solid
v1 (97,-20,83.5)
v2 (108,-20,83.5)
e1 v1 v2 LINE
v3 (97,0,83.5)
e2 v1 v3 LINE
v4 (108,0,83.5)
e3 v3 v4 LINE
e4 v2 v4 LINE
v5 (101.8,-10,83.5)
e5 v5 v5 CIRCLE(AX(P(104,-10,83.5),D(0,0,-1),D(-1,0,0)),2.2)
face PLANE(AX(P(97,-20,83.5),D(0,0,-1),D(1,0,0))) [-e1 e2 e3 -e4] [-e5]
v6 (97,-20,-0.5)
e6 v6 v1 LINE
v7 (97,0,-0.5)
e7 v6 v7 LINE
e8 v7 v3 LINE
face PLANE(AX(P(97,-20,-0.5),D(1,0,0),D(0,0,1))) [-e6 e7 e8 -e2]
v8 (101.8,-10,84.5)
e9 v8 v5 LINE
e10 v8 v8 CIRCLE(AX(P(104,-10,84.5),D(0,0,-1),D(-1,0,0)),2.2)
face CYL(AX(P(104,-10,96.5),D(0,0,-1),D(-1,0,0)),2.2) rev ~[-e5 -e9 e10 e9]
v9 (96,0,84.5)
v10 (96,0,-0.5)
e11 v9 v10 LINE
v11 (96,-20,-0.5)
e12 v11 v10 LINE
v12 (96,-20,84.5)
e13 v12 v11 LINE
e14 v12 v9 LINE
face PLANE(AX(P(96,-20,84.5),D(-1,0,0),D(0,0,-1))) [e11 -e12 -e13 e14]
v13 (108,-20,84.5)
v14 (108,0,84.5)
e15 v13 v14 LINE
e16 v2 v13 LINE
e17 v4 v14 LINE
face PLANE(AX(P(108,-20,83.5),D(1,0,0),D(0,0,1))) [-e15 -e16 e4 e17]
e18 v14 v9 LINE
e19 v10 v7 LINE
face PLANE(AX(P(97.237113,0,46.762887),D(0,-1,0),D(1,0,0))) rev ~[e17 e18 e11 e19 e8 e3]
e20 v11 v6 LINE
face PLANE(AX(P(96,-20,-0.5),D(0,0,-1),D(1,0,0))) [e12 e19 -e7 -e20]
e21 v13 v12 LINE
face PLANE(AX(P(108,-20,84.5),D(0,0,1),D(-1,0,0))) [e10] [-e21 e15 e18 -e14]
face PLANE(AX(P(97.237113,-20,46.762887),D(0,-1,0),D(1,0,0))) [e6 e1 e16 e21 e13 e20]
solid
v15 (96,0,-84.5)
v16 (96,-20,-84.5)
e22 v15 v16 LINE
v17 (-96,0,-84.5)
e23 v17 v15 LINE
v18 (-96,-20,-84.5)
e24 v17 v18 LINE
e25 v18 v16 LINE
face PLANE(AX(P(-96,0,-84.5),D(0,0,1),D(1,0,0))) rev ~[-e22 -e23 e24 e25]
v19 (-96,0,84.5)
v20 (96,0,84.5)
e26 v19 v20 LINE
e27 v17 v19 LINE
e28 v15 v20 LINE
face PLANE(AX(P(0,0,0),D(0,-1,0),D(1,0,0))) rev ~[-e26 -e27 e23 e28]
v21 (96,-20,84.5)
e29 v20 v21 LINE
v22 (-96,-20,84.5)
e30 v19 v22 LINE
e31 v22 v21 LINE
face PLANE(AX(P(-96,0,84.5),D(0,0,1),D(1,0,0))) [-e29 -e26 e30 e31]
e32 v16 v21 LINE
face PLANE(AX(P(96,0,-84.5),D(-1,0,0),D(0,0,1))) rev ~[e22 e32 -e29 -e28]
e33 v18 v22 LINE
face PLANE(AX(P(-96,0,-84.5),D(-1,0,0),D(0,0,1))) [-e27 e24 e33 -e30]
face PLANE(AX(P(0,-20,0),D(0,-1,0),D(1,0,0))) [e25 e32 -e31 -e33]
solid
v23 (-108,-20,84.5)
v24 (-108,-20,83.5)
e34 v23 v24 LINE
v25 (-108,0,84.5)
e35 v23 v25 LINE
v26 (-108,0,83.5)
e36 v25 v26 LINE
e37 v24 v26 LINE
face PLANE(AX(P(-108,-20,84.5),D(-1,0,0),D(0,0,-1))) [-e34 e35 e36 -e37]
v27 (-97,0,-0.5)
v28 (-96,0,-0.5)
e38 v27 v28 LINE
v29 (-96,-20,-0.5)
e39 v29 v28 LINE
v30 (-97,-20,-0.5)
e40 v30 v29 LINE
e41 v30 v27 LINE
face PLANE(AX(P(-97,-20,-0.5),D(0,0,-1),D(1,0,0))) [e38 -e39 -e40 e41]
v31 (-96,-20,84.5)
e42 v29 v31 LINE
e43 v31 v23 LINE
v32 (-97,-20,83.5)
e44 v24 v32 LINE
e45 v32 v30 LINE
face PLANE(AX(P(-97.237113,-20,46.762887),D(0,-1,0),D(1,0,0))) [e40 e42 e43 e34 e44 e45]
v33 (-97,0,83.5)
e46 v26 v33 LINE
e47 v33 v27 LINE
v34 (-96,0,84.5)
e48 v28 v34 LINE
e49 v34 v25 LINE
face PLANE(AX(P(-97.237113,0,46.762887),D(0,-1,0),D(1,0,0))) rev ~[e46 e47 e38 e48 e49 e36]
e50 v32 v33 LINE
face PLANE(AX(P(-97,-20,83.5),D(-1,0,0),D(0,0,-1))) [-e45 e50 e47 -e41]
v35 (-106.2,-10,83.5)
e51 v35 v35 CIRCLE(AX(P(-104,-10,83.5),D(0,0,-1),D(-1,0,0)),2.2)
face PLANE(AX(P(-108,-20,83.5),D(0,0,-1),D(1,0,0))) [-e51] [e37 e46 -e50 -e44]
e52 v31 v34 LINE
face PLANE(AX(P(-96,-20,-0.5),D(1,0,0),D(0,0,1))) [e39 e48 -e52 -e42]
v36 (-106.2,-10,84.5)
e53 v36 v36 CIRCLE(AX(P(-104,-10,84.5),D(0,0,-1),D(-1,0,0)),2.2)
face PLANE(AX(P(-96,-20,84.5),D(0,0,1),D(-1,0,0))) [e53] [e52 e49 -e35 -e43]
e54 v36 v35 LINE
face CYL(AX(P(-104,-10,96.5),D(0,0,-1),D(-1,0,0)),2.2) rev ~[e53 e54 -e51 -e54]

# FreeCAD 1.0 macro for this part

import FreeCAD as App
import Part
import Sketcher

doc = App.newDocument("Part")
body = doc.addObject("PartDesign::Body", "Body")

sketch1 = body.newObject("Sketcher::SketchObject", "Sketch")
sketch1.AttachmentSupport = (doc.getObject("XZ_Plane"), [""])
sketch1.MapMode = "FlatFace"
sketch1.addGeometry(Part.LineSegment(App.Vector(-96, 84, 0), App.Vector(-96, -84, 0)), False)
sketch1.addGeometry(Part.LineSegment(App.Vector(-96, -84, 0), App.Vector(96, -84, 0)), False)
sketch1.addGeometry(Part.LineSegment(App.Vector(96, -84, 0), App.Vector(96, 84, 0)), False)
sketch1.addGeometry(Part.LineSegment(App.Vector(96, 84, 0), App.Vector(-96, 84, 0)), False)
sketch1.addConstraint(Sketcher.Constraint("Coincident", 0, 2, 1, 1))
sketch1.addConstraint(Sketcher.Constraint("Coincident", 1, 2, 2, 1))
sketch1.addConstraint(Sketcher.Constraint("Coincident", 2, 2, 3, 1))
sketch1.addConstraint(Sketcher.Constraint("Coincident", 3, 2, 0, 1))
sketch1.addConstraint(Sketcher.Constraint("Vertical", 0))
sketch1.addConstraint(Sketcher.Constraint("Horizontal", 1))
sketch1.addConstraint(Sketcher.Constraint("Vertical", 2))
sketch1.addConstraint(Sketcher.Constraint("Horizontal", 3))
sketch1.addConstraint(Sketcher.Constraint("Symmetric", 0, 2, 2, 2, -1, 1))
sketch1.addConstraint(Sketcher.Constraint("DistanceX", 1, 1, 1, 2, 192.0))
sketch1.addConstraint(Sketcher.Constraint("DistanceY", 0, 2, 0, 1, 169.0))
pad1 = body.newObject("PartDesign::Pad", "Pad")
pad1.Profile = sketch1
pad1.Length = 20
body2 = doc.addObject("PartDesign::Body", "Body001")

sketch2 = body2.newObject("Sketcher::SketchObject", "Sketch001")
sketch2.AttachmentSupport = (doc.getObject("XZ_Plane001"), [""])
sketch2.MapMode = "FlatFace"
sketch2.AttachmentOffset = App.Placement(App.Vector(0, 0, 20), App.Rotation())
sketch2.addGeometry(Part.LineSegment(App.Vector(-96, -0.5, 0), App.Vector(-96, 84.5, 0)), False)
sketch2.addGeometry(Part.LineSegment(App.Vector(-96, 84.5, 0), App.Vector(-108, 84.5, 0)), False)
sketch2.addGeometry(Part.LineSegment(App.Vector(-108, 84.5, 0), App.Vector(-108, 83.5, 0)), False)
sketch2.addGeometry(Part.LineSegment(App.Vector(-108, 83.5, 0), App.Vector(-97, 83.5, 0)), False)
sketch2.addGeometry(Part.LineSegment(App.Vector(-97, 83.5, 0), App.Vector(-97, -0.5, 0)), False)
sketch2.addGeometry(Part.LineSegment(App.Vector(-97, -0.5, 0), App.Vector(-96, -0.5, 0)), False)
sketch2.addConstraint(Sketcher.Constraint("Coincident", 0, 2, 1, 1))
sketch2.addConstraint(Sketcher.Constraint("Coincident", 1, 2, 2, 1))
sketch2.addConstraint(Sketcher.Constraint("Coincident", 2, 2, 3, 1))
sketch2.addConstraint(Sketcher.Constraint("Coincident", 3, 2, 4, 1))
sketch2.addConstraint(Sketcher.Constraint("Coincident", 4, 2, 5, 1))
sketch2.addConstraint(Sketcher.Constraint("Coincident", 5, 2, 0, 1))
sketch2.addConstraint(Sketcher.Constraint("Vertical", 0))
sketch2.addConstraint(Sketcher.Constraint("Horizontal", 1))
sketch2.addConstraint(Sketcher.Constraint("Vertical", 2))
sketch2.addConstraint(Sketcher.Constraint("Horizontal", 3))
sketch2.addConstraint(Sketcher.Constraint("Vertical", 4))
sketch2.addConstraint(Sketcher.Constraint("Horizontal", 5))
sketch2.addConstraint(Sketcher.Constraint("Equal", 5, 2))
sketch2.addConstraint(Sketcher.Constraint("DistanceX", 1, 2, 1, 1, 12.0))
sketch2.addConstraint(Sketcher.Constraint("DistanceX", 3, 1, 3, 2, 11.0))
sketch2.addConstraint(Sketcher.Constraint("DistanceY", 0, 1, 0, 2, 85.0))
sketch2.addConstraint(Sketcher.Constraint("DistanceX", 0, 2, -1, 1, 96.0))
sketch2.addConstraint(Sketcher.Constraint("DistanceY", -1, 1, 0, 2, 84.5))
pad2 = body2.newObject("PartDesign::Pad", "Pad001")
pad2.Profile = sketch2
pad2.Length = 20
pad2.Reversed = True

sketch3 = body2.newObject("Sketcher::SketchObject", "Sketch002")
sketch3.AttachmentSupport = (doc.getObject("XY_Plane001"), [""])
sketch3.MapMode = "FlatFace"
sketch3.AttachmentOffset = App.Placement(App.Vector(0, 0, 84.5), App.Rotation())
sketch3.addGeometry(Part.Circle(App.Vector(-104, -10, 0), App.Vector(0, 0, 1), 2.2), False)
sketch3.addGeometry(Part.Circle(App.Vector(104, -10, 0), App.Vector(0, 0, 1), 2.2), False)
sketch3.addConstraint(Sketcher.Constraint("Equal", 0, 1))
sketch3.addConstraint(Sketcher.Constraint("Symmetric", 0, 3, 1, 3, -2))
sketch3.addConstraint(Sketcher.Constraint("Diameter", 0, 4.4))
sketch3.addConstraint(Sketcher.Constraint("DistanceX", 0, 3, -1, 1, 104.0))
sketch3.addConstraint(Sketcher.Constraint("DistanceY", 0, 3, -1, 1, 10.0))
doc.recompute()
hole = body2.newObject("PartDesign::Hole", "Hole")
hole.Profile = sketch3
hole.ThreadType = "None"
hole.Diameter = 4.4
hole.DepthType = "Dimension"
hole.Depth = 12
hole.DrillPoint = "Angled"
hole.DrillPointAngle = 118
body3 = doc.addObject("PartDesign::Body", "Body002")

sketch4 = body3.newObject("Sketcher::SketchObject", "Sketch003")
sketch4.AttachmentSupport = (doc.getObject("XZ_Plane002"), [""])
sketch4.MapMode = "FlatFace"
sketch4.AttachmentOffset = App.Placement(App.Vector(0, 0, 20), App.Rotation())
sketch4.addGeometry(Part.LineSegment(App.Vector(108, 83.5, 0), App.Vector(108, 84.5, 0)), False)
sketch4.addGeometry(Part.LineSegment(App.Vector(108, 84.5, 0), App.Vector(96, 84.5, 0)), False)
sketch4.addGeometry(Part.LineSegment(App.Vector(96, 84.5, 0), App.Vector(96, -0.5, 0)), False)
sketch4.addGeometry(Part.LineSegment(App.Vector(96, -0.5, 0), App.Vector(97, -0.5, 0)), False)
sketch4.addGeometry(Part.LineSegment(App.Vector(97, -0.5, 0), App.Vector(97, 83.5, 0)), False)
sketch4.addGeometry(Part.LineSegment(App.Vector(97, 83.5, 0), App.Vector(108, 83.5, 0)), False)
sketch4.addConstraint(Sketcher.Constraint("Coincident", 0, 2, 1, 1))
sketch4.addConstraint(Sketcher.Constraint("Coincident", 1, 2, 2, 1))
sketch4.addConstraint(Sketcher.Constraint("Coincident", 2, 2, 3, 1))
sketch4.addConstraint(Sketcher.Constraint("Coincident", 3, 2, 4, 1))
sketch4.addConstraint(Sketcher.Constraint("Coincident", 4, 2, 5, 1))
sketch4.addConstraint(Sketcher.Constraint("Coincident", 5, 2, 0, 1))
sketch4.addConstraint(Sketcher.Constraint("Vertical", 0))
sketch4.addConstraint(Sketcher.Constraint("Horizontal", 1))
sketch4.addConstraint(Sketcher.Constraint("Vertical", 2))
sketch4.addConstraint(Sketcher.Constraint("Horizontal", 3))
sketch4.addConstraint(Sketcher.Constraint("Vertical", 4))
sketch4.addConstraint(Sketcher.Constraint("Horizontal", 5))
sketch4.addConstraint(Sketcher.Constraint("Equal", 3, 0))
sketch4.addConstraint(Sketcher.Constraint("DistanceX", 1, 2, 1, 1, 12.0))
sketch4.addConstraint(Sketcher.Constraint("DistanceX", 3, 1, 3, 2, 1.0))
sketch4.addConstraint(Sketcher.Constraint("DistanceY", 2, 2, 2, 1, 85.0))
sketch4.addConstraint(Sketcher.Constraint("DistanceX", -1, 1, 0, 2, 108.0))
sketch4.addConstraint(Sketcher.Constraint("DistanceY", -1, 1, 0, 2, 84.5))
pad3 = body3.newObject("PartDesign::Pad", "Pad002")
pad3.Profile = sketch4
pad3.Length = 20
pad3.Reversed = True

sketch5 = body3.newObject("Sketcher::SketchObject", "Sketch004")
sketch5.AttachmentSupport = (doc.getObject("XY_Plane002"), [""])
sketch5.MapMode = "FlatFace"
sketch5.AttachmentOffset = App.Placement(App.Vector(0, 0, 84.5), App.Rotation())
sketch5.addGeometry(Part.Circle(App.Vector(-104, -10, 0), App.Vector(0, 0, 1), 2.2), False)
sketch5.addGeometry(Part.Circle(App.Vector(104, -10, 0), App.Vector(0, 0, 1), 2.2), False)
sketch5.addConstraint(Sketcher.Constraint("Equal", 0, 1))
sketch5.addConstraint(Sketcher.Constraint("Symmetric", 0, 3, 1, 3, -2))
sketch5.addConstraint(Sketcher.Constraint("Diameter", 0, 4.4))
sketch5.addConstraint(Sketcher.Constraint("DistanceX", 0, 3, -1, 1, 104.0))
sketch5.addConstraint(Sketcher.Constraint("DistanceY", 0, 3, -1, 1, 10.0))
doc.recompute()
hole2 = body3.newObject("PartDesign::Hole", "Hole001")
hole2.Profile = sketch5
hole2.ThreadType = "None"
hole2.Diameter = 4.4
hole2.DepthType = "Dimension"
hole2.Depth = 12
hole2.DrillPoint = "Angled"
hole2.DrillPointAngle = 118

doc.recompute()
